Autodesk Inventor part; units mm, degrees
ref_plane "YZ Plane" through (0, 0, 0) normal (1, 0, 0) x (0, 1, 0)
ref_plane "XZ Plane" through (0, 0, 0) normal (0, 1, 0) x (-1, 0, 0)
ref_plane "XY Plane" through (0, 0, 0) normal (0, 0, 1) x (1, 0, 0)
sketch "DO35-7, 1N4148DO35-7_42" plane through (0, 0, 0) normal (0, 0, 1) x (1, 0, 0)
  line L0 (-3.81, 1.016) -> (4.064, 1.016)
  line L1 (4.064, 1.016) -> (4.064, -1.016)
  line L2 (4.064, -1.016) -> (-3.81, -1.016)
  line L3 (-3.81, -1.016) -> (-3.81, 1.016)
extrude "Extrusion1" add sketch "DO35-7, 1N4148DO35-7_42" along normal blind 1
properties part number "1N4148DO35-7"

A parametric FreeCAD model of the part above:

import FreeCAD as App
import Part
import Sketcher
Q = App.Units.Quantity

doc = App.newDocument("Part")
body = doc.addObject("PartDesign::Body", "Body")

sketch1 = doc.addObject("Sketcher::SketchObject", "Sketch")
body.addObject(sketch1)
sketch1.AttachmentSupport = (doc.XY_Plane, [""])
sketch1.MapMode = "FlatFace"
sketch1.addGeometry([
    Part.LineSegment(App.Vector(4.1, 1, 0), App.Vector(-3.8, 1, 0)),
    Part.LineSegment(App.Vector(-3.8, 1, 0), App.Vector(-3.8, -1, 0)),
    Part.LineSegment(App.Vector(-3.8, -1, 0), App.Vector(4.1, -1, 0)),
    Part.LineSegment(App.Vector(4.1, -1, 0), App.Vector(4.1, 1, 0)),
], False)
sketch1.addConstraint([
    Sketcher.Constraint("Coincident", 0, 2, 1, 1),
    Sketcher.Constraint("Coincident", 1, 2, 2, 1),
    Sketcher.Constraint("Coincident", 2, 2, 3, 1),
    Sketcher.Constraint("Coincident", 3, 2, 0, 1),
    Sketcher.Constraint("Horizontal", 0),
    Sketcher.Constraint("Vertical", 1),
    Sketcher.Constraint("Horizontal", 2),
    Sketcher.Constraint("Vertical", 3),
    Sketcher.Constraint("DistanceX", 0, 2, 0, 1, Q("0.31 in")),
    Sketcher.Constraint("DistanceY", 1, 2, 1, 1, Q("0.08 in")),
    Sketcher.Constraint("DistanceX", 0, 2, -1, 1, Q("0.15 in")),
    Sketcher.Constraint("DistanceY", -1, 1, 0, 2, Q("0.04 in")),
])
pad1 = doc.addObject("PartDesign::Pad", "Pad")
body.addObject(pad1)
pad1.Profile = sketch1
pad1.Length = 1

doc.recompute()
